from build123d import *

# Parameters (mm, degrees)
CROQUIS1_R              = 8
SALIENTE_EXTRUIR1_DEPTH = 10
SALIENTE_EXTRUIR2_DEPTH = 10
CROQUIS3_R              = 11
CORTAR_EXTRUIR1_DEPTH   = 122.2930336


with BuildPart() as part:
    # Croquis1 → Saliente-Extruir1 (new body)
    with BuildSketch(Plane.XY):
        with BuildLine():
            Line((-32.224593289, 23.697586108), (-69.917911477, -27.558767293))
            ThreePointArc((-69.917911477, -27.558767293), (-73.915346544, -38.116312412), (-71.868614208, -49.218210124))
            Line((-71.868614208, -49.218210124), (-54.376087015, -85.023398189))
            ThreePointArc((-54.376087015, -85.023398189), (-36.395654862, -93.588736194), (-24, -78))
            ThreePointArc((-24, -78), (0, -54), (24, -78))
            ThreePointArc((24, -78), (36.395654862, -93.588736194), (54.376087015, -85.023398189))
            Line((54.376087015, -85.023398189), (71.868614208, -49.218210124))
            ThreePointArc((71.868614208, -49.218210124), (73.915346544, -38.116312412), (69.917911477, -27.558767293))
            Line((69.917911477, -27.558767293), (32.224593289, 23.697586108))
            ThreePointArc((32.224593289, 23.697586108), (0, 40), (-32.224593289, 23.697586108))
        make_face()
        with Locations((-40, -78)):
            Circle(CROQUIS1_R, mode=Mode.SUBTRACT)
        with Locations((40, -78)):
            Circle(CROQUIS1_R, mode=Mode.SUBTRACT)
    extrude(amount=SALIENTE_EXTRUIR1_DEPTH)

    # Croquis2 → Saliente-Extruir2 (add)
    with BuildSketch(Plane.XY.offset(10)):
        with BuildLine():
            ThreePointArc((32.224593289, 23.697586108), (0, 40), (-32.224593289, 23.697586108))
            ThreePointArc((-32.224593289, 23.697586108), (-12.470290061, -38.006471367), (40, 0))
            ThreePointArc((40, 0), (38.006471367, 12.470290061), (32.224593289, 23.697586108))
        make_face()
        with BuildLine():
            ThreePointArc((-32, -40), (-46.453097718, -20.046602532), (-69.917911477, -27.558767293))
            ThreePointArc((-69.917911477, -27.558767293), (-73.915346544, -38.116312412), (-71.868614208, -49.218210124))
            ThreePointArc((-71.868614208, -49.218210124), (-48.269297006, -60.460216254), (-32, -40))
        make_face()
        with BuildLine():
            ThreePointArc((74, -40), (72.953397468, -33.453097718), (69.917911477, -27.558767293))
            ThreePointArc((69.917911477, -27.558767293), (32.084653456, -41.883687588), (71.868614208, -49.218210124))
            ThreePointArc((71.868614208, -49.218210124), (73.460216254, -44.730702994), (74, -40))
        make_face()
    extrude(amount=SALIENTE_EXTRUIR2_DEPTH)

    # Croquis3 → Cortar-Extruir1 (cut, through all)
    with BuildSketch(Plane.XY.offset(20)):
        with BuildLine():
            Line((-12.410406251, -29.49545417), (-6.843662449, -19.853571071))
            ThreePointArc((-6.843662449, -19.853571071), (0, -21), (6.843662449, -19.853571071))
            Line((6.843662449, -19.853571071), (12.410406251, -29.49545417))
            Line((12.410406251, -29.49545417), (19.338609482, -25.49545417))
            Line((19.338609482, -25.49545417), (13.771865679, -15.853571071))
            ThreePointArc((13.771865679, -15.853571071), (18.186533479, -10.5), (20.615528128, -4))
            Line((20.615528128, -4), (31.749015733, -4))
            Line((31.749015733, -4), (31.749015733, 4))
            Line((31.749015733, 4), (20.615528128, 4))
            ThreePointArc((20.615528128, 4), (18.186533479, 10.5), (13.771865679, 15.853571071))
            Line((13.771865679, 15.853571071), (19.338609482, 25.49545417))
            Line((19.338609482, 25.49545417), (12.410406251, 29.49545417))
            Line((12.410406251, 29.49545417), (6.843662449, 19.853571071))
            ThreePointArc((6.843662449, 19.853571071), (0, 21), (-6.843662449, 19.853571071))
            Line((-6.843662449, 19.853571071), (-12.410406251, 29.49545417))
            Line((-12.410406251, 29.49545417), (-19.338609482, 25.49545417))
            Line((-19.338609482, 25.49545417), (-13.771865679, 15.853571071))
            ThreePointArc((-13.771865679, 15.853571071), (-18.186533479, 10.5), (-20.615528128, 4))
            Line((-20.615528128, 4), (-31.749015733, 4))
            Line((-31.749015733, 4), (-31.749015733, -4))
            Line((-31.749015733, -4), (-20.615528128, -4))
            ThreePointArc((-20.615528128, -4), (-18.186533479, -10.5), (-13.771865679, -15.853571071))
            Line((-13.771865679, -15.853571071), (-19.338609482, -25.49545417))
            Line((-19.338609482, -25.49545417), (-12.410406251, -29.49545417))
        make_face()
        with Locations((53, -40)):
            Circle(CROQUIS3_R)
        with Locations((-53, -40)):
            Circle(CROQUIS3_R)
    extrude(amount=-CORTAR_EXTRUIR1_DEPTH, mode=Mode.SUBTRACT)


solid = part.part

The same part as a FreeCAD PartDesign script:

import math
import FreeCAD as App
import Part
import Sketcher
from FreeCAD import Vector
Q = App.Units.Quantity

doc = App.newDocument("Part")
body = doc.addObject("PartDesign::Body", "Body")

sketch1 = body.newObject("Sketcher::SketchObject", "Sketch")
sketch1.AttachmentSupport = (doc.getObject("XY_Plane"), [""])
sketch1.MapMode = "FlatFace"
sketch1.addGeometry([
    Part.LineSegment(Vector(-32, 24, 0), Vector(-70, -28, 0)),
    Part.ArcOfCircle(Part.Circle(Vector(-53, -40, 0), Vector(0, 0, 1), 21), math.radians(144), math.radians(206)),
    Part.LineSegment(Vector(-72, -49, 0), Vector(-54, -85, 0)),
    Part.ArcOfCircle(Part.Circle(Vector(-40, -78, 0), Vector(0, 0, 1), 16), math.radians(-154), math.radians(0)),
    Part.ArcOfCircle(Part.Circle(Vector(0, -78, 0), Vector(0, 0, 1), 24), math.radians(0), math.radians(180)),
    Part.ArcOfCircle(Part.Circle(Vector(40, -78, 0), Vector(0, 0, 1), 16), math.radians(180), math.radians(334)),
    Part.LineSegment(Vector(54, -85, 0), Vector(72, -49, 0)),
    Part.ArcOfCircle(Part.Circle(Vector(53, -40, 0), Vector(0, 0, 1), 21), math.radians(-26), math.radians(36)),
    Part.LineSegment(Vector(70, -28, 0), Vector(32, 24, 0)),
    Part.ArcOfCircle(Part.Circle(Vector(0, 0, 0), Vector(0, 0, 1), 40), math.radians(36), math.radians(144)),
    Part.Circle(Vector(-40, -78, 0), Vector(0, 0, 1), 8),
    Part.Circle(Vector(40, -78, 0), Vector(0, 0, 1), 8),
], False)
sketch1.addConstraint([
    Sketcher.Constraint("Tangent", 0, 2, 1, 1),
    Sketcher.Constraint("Tangent", 1, 2, 2, 1),
    Sketcher.Constraint("Tangent", 2, 2, 3, 1),
    Sketcher.Constraint("Tangent", 3, 2, 4, 2),
    Sketcher.Constraint("Tangent", 4, 1, 5, 1),
    Sketcher.Constraint("Tangent", 5, 2, 6, 1),
    Sketcher.Constraint("Tangent", 6, 2, 7, 1),
    Sketcher.Constraint("Tangent", 7, 2, 8, 1),
    Sketcher.Constraint("Tangent", 8, 2, 9, 1),
    Sketcher.Constraint("Tangent", 9, 2, 0, 1),
    Sketcher.Constraint("Coincident", 9, 3, -1, 1),
    Sketcher.Constraint("Coincident", 10, 3, 3, 3),
    Sketcher.Constraint("Coincident", 11, 3, 5, 3),
    Sketcher.Constraint("Equal", 3, 5),
    Sketcher.Constraint("Equal", 1, 7),
    Sketcher.Constraint("Equal", 10, 11),
    Sketcher.Constraint("Symmetric", 3, 3, 5, 3, -2),
    Sketcher.Constraint("Symmetric", 1, 3, 7, 3, -2),
    Sketcher.Constraint("Horizontal", 3, 3, 4, 3),
    Sketcher.Constraint("Diameter", 10, 16.0),
    Sketcher.Constraint("Radius", 1, 21.0),
    Sketcher.Constraint("Radius", 3, 16.0),
    Sketcher.Constraint("Radius", 4, 24.0),
    Sketcher.Constraint("Radius", 9, 40.0),
    Sketcher.Constraint("DistanceX", 1, 3, -1, 1, 53.0),
    Sketcher.Constraint("DistanceY", 1, 3, -1, 1, 40.0),
    Sketcher.Constraint("DistanceY", 3, 3, -1, 1, 78.0),
])
pad1 = body.newObject("PartDesign::Pad", "Pad")
pad1.Profile = sketch1
pad1.Length = 10

sketch2 = body.newObject("Sketcher::SketchObject", "Sketch001")
sketch2.AttachmentSupport = (doc.getObject("XY_Plane"), [""])
sketch2.MapMode = "FlatFace"
sketch2.AttachmentOffset = App.Placement(Vector(0, 0, 10), App.Rotation())
sketch2.addGeometry([
    Part.ArcOfCircle(Part.Circle(Vector(0, 0, 0), Vector(0, 0, 1), 40), math.radians(36), math.radians(144)),
    Part.ArcOfCircle(Part.Circle(Vector(0, 0, 0), Vector(0, 0, 1), 40), math.radians(144), math.radians(360)),
    Part.ArcOfCircle(Part.Circle(Vector(0, 0, 0), Vector(0, 0, 1), 40), math.radians(0), math.radians(36)),
    Part.ArcOfCircle(Part.Circle(Vector(-53, -40, 0), Vector(0, 0, 1), 21), math.radians(0), math.radians(144)),
    Part.ArcOfCircle(Part.Circle(Vector(-53, -40, 0), Vector(0, 0, 1), 21), math.radians(144), math.radians(206)),
    Part.ArcOfCircle(Part.Circle(Vector(-53, -40, 0), Vector(0, 0, 1), 21), math.radians(-154), math.radians(0)),
    Part.ArcOfCircle(Part.Circle(Vector(53, -40, 0), Vector(0, 0, 1), 21), math.radians(0), math.radians(36)),
    Part.ArcOfCircle(Part.Circle(Vector(53, -40, 0), Vector(0, 0, 1), 21), math.radians(36), math.radians(334)),
    Part.ArcOfCircle(Part.Circle(Vector(53, -40, 0), Vector(0, 0, 1), 21), math.radians(-26), math.radians(0)),
], False)
sketch2.addConstraint([
    Sketcher.Constraint("Tangent", 0, 2, 1, 1),
    Sketcher.Constraint("Tangent", 1, 2, 2, 1),
    Sketcher.Constraint("Tangent", 2, 2, 0, 1),
    Sketcher.Constraint("Tangent", 3, 2, 4, 1),
    Sketcher.Constraint("Tangent", 4, 2, 5, 1),
    Sketcher.Constraint("Tangent", 5, 2, 3, 1),
    Sketcher.Constraint("Tangent", 6, 2, 7, 1),
    Sketcher.Constraint("Tangent", 7, 2, 8, 1),
    Sketcher.Constraint("Tangent", 8, 2, 6, 1),
    Sketcher.Constraint("Coincident", 0, 3, -1, 1),
    Sketcher.Constraint("Equal", 5, 6),
    Sketcher.Constraint("Symmetric", 3, 3, 6, 3, -2),
    Sketcher.Constraint("PointOnObject", 1, 2, -1),
    Sketcher.Constraint("Horizontal", 0, 2, 2, 2),
    Sketcher.Constraint("Horizontal", 8, 3, 5, 2),
    Sketcher.Constraint("Horizontal", 3, 2, 6, 2),
    Sketcher.Constraint("Horizontal", 4, 2, 7, 2),
    Sketcher.Constraint("Horizontal", 5, 2, 8, 2),
    Sketcher.Constraint("Radius", 0, 40.0),
    Sketcher.Constraint("Radius", 3, 21.0),
    Sketcher.Constraint("DistanceX", 3, 3, -1, 1, 53.0),
    Sketcher.Constraint("DistanceY", 3, 3, -1, 1, 40.0),
    Sketcher.Constraint("DistanceX", 3, 2, -1, 1, 69.917911),
    Sketcher.Constraint("DistanceY", 4, 2, -1, 1, 49.21821),
    Sketcher.Constraint("DistanceX", 3, 2, 0, 2, 37.693318),
])
pad2 = body.newObject("PartDesign::Pad", "Pad001")
pad2.Profile = sketch2
pad2.Length = 10

sketch3 = body.newObject("Sketcher::SketchObject", "Sketch002")
sketch3.AttachmentSupport = (doc.getObject("XY_Plane"), [""])
sketch3.MapMode = "FlatFace"
sketch3.AttachmentOffset = App.Placement(Vector(0, 0, 20), App.Rotation())
sketch3.addGeometry([
    Part.LineSegment(Vector(-12, -29, 0), Vector(-7, -20, 0)),
    Part.ArcOfCircle(Part.Circle(Vector(0, 0, 0), Vector(0, 0, 1), 21), math.radians(-109), math.radians(-71)),
    Part.LineSegment(Vector(7, -20, 0), Vector(12, -29, 0)),
    Part.LineSegment(Vector(12, -29, 0), Vector(19, -25, 0)),
    Part.LineSegment(Vector(19, -25, 0), Vector(14, -16, 0)),
    Part.ArcOfCircle(Part.Circle(Vector(0, 0, 0), Vector(0, 0, 1), 21), math.radians(-49), math.radians(-11)),
    Part.LineSegment(Vector(21, -4, 0), Vector(32, -4, 0)),
    Part.LineSegment(Vector(32, -4, 0), Vector(32, 4, 0)),
    Part.LineSegment(Vector(32, 4, 0), Vector(21, 4, 0)),
    Part.ArcOfCircle(Part.Circle(Vector(0, 0, 0), Vector(0, 0, 1), 21), math.radians(11), math.radians(49)),
    Part.LineSegment(Vector(14, 16, 0), Vector(19, 25, 0)),
    Part.LineSegment(Vector(19, 25, 0), Vector(12, 29, 0)),
    Part.LineSegment(Vector(12, 29, 0), Vector(7, 20, 0)),
    Part.ArcOfCircle(Part.Circle(Vector(0, 0, 0), Vector(0, 0, 1), 21), math.radians(71), math.radians(109)),
    Part.LineSegment(Vector(-7, 20, 0), Vector(-12, 29, 0)),
    Part.LineSegment(Vector(-12, 29, 0), Vector(-19, 25, 0)),
    Part.LineSegment(Vector(-19, 25, 0), Vector(-14, 16, 0)),
    Part.ArcOfCircle(Part.Circle(Vector(0, 0, 0), Vector(0, 0, 1), 21), math.radians(131), math.radians(169)),
    Part.LineSegment(Vector(-21, 4, 0), Vector(-32, 4, 0)),
    Part.LineSegment(Vector(-32, 4, 0), Vector(-32, -4, 0)),
    Part.LineSegment(Vector(-32, -4, 0), Vector(-21, -4, 0)),
    Part.ArcOfCircle(Part.Circle(Vector(0, 0, 0), Vector(0, 0, 1), 21), math.radians(-169), math.radians(-131)),
    Part.LineSegment(Vector(-14, -16, 0), Vector(-19, -25, 0)),
    Part.LineSegment(Vector(-19, -25, 0), Vector(-12, -29, 0)),
    Part.Circle(Vector(53, -40, 0), Vector(0, 0, 1), 11),
    Part.Circle(Vector(-53, -40, 0), Vector(0, 0, 1), 11),
], False)
sketch3.addConstraint([
    Sketcher.Constraint("Coincident", 0, 2, 1, 1),
    Sketcher.Constraint("Coincident", 1, 2, 2, 1),
    Sketcher.Constraint("Coincident", 2, 2, 3, 1),
    Sketcher.Constraint("Coincident", 3, 2, 4, 1),
    Sketcher.Constraint("Coincident", 4, 2, 5, 1),
    Sketcher.Constraint("Coincident", 5, 2, 6, 1),
    Sketcher.Constraint("Coincident", 6, 2, 7, 1),
    Sketcher.Constraint("Coincident", 7, 2, 8, 1),
    Sketcher.Constraint("Coincident", 8, 2, 9, 1),
    Sketcher.Constraint("Coincident", 9, 2, 10, 1),
    Sketcher.Constraint("Coincident", 10, 2, 11, 1),
    Sketcher.Constraint("Coincident", 11, 2, 12, 1),
    Sketcher.Constraint("Coincident", 12, 2, 13, 1),
    Sketcher.Constraint("Coincident", 13, 2, 14, 1),
    Sketcher.Constraint("Coincident", 14, 2, 15, 1),
    Sketcher.Constraint("Coincident", 15, 2, 16, 1),
    Sketcher.Constraint("Coincident", 16, 2, 17, 1),
    Sketcher.Constraint("Coincident", 17, 2, 18, 1),
    Sketcher.Constraint("Coincident", 18, 2, 19, 1),
    Sketcher.Constraint("Coincident", 19, 2, 20, 1),
    Sketcher.Constraint("Coincident", 20, 2, 21, 1),
    Sketcher.Constraint("Coincident", 21, 2, 22, 1),
    Sketcher.Constraint("Coincident", 22, 2, 23, 1),
    Sketcher.Constraint("Coincident", 23, 2, 0, 1),
    Sketcher.Constraint("Horizontal", 6),
    Sketcher.Constraint("Vertical", 7),
    Sketcher.Constraint("Horizontal", 8),
    Sketcher.Constraint("Horizontal", 18),
    Sketcher.Constraint("Vertical", 19),
    Sketcher.Constraint("Horizontal", 20),
    Sketcher.Constraint("Coincident", 1, 3, -1, 1),
    Sketcher.Constraint("Coincident", 5, 3, -1, 1),
    Sketcher.Constraint("Coincident", 9, 3, -1, 1),
    Sketcher.Constraint("Coincident", 13, 3, -1, 1),
    Sketcher.Constraint("Coincident", 17, 3, -1, 1),
    Sketcher.Constraint("Coincident", 21, 3, -1, 1),
    Sketcher.Constraint("Equal", 1, 5),
    Sketcher.Constraint("Equal", 5, 9),
    Sketcher.Constraint("Equal", 9, 13),
    Sketcher.Constraint("Equal", 13, 17),
    Sketcher.Constraint("Equal", 17, 21),
    Sketcher.Constraint("Equal", 24, 25),
    Sketcher.Constraint("Symmetric", 2, 2, 14, 2, -1, 1),
    Sketcher.Constraint("Symmetric", 3, 2, 15, 2, -1, 1),
    Sketcher.Constraint("Symmetric", 6, 2, 18, 2, -1, 1),
    Sketcher.Constraint("Symmetric", 10, 2, 22, 2, -1, 1),
    Sketcher.Constraint("Symmetric", 11, 2, 23, 2, -1, 1),
    Sketcher.Constraint("Symmetric", 24, 3, 25, 3, -2),
    Sketcher.Constraint("Symmetric", 11, 2, 14, 2, -2),
    Sketcher.Constraint("Symmetric", 10, 2, 15, 2, -2),
    Sketcher.Constraint("Perpendicular", 2, 3),
    Sketcher.Constraint("Perpendicular", 3, 4),
    Sketcher.Constraint("Parallel", 0, 10),
    Sketcher.Constraint("Perpendicular", 10, 11),
    Sketcher.Constraint("Perpendicular", 11, 12),
    Sketcher.Constraint("Parallel", 4, 14),
    Sketcher.Constraint("Perpendicular", 15, 16),
    Sketcher.Constraint("Parallel", 12, 22),
    Sketcher.Constraint("Horizontal", 8, 2, 17, 2),
    Sketcher.Constraint("Horizontal", 6, 2, 19, 2),
    Sketcher.Constraint("Equal", 2, 4),
    Sketcher.Constraint("Diameter", 24, 22.0),
    Sketcher.Constraint("Radius", 1, 21.0),
    Sketcher.Constraint("DistanceY", 7, 1, 7, 2, 8.0),
    Sketcher.Constraint("Angle", 0, Q("60 deg")),
    Sketcher.Constraint("Distance", 3, 8.0),
    Sketcher.Constraint("DistanceX", -1, 1, 24, 3, 53.0),
    Sketcher.Constraint("DistanceY", 24, 3, -1, 1, 40.0),
    Sketcher.Constraint("DistanceX", 6, 1, 6, 2, 11.133488),
    Sketcher.Constraint("DistanceX", -1, 1, 3, 2, 19.338609),
])
pocket1 = body.newObject("PartDesign::Pocket", "Pocket")
pocket1.Profile = sketch3
pocket1.Type = "ThroughAll"

doc.recompute()
